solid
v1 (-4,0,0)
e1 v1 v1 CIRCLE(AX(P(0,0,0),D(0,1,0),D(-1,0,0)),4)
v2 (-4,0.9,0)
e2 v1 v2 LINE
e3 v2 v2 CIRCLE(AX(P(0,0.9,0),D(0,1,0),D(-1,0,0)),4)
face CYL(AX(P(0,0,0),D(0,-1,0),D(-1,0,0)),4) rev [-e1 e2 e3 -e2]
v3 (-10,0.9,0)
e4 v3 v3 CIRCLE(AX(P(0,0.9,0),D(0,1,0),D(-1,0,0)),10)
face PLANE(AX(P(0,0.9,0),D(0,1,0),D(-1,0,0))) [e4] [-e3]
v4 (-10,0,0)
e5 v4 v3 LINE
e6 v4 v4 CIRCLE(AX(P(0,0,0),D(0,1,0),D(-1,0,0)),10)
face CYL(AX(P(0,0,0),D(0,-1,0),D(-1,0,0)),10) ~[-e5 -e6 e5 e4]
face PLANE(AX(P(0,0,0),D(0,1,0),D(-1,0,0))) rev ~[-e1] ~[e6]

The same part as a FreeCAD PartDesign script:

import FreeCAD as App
import Part
import Sketcher
from FreeCAD import Vector

doc = App.newDocument("Part")
body = doc.addObject("PartDesign::Body", "Body")

sketch1 = body.newObject("Sketcher::SketchObject", "Sketch")
sketch1.AttachmentSupport = (doc.getObject("XZ_Plane"), [""])
sketch1.MapMode = "FlatFace"
sketch1.addGeometry(Part.Circle(Vector(0, 0, 0), Vector(0, 0, 1), 10), False)
sketch1.addGeometry(Part.Circle(Vector(0, 0, 0), Vector(0, 0, 1), 4), False)
sketch1.addConstraint(Sketcher.Constraint("Coincident", 0, 3, -1, 1))
sketch1.addConstraint(Sketcher.Constraint("Coincident", 1, 3, -1, 1))
sketch1.addConstraint(Sketcher.Constraint("Diameter", 0, 20.0))
sketch1.addConstraint(Sketcher.Constraint("Diameter", 1, 8.0))
pad1 = body.newObject("PartDesign::Pad", "Pad")
pad1.Profile = sketch1
pad1.Length = 0.9
pad1.Reversed = True

doc.recompute()
